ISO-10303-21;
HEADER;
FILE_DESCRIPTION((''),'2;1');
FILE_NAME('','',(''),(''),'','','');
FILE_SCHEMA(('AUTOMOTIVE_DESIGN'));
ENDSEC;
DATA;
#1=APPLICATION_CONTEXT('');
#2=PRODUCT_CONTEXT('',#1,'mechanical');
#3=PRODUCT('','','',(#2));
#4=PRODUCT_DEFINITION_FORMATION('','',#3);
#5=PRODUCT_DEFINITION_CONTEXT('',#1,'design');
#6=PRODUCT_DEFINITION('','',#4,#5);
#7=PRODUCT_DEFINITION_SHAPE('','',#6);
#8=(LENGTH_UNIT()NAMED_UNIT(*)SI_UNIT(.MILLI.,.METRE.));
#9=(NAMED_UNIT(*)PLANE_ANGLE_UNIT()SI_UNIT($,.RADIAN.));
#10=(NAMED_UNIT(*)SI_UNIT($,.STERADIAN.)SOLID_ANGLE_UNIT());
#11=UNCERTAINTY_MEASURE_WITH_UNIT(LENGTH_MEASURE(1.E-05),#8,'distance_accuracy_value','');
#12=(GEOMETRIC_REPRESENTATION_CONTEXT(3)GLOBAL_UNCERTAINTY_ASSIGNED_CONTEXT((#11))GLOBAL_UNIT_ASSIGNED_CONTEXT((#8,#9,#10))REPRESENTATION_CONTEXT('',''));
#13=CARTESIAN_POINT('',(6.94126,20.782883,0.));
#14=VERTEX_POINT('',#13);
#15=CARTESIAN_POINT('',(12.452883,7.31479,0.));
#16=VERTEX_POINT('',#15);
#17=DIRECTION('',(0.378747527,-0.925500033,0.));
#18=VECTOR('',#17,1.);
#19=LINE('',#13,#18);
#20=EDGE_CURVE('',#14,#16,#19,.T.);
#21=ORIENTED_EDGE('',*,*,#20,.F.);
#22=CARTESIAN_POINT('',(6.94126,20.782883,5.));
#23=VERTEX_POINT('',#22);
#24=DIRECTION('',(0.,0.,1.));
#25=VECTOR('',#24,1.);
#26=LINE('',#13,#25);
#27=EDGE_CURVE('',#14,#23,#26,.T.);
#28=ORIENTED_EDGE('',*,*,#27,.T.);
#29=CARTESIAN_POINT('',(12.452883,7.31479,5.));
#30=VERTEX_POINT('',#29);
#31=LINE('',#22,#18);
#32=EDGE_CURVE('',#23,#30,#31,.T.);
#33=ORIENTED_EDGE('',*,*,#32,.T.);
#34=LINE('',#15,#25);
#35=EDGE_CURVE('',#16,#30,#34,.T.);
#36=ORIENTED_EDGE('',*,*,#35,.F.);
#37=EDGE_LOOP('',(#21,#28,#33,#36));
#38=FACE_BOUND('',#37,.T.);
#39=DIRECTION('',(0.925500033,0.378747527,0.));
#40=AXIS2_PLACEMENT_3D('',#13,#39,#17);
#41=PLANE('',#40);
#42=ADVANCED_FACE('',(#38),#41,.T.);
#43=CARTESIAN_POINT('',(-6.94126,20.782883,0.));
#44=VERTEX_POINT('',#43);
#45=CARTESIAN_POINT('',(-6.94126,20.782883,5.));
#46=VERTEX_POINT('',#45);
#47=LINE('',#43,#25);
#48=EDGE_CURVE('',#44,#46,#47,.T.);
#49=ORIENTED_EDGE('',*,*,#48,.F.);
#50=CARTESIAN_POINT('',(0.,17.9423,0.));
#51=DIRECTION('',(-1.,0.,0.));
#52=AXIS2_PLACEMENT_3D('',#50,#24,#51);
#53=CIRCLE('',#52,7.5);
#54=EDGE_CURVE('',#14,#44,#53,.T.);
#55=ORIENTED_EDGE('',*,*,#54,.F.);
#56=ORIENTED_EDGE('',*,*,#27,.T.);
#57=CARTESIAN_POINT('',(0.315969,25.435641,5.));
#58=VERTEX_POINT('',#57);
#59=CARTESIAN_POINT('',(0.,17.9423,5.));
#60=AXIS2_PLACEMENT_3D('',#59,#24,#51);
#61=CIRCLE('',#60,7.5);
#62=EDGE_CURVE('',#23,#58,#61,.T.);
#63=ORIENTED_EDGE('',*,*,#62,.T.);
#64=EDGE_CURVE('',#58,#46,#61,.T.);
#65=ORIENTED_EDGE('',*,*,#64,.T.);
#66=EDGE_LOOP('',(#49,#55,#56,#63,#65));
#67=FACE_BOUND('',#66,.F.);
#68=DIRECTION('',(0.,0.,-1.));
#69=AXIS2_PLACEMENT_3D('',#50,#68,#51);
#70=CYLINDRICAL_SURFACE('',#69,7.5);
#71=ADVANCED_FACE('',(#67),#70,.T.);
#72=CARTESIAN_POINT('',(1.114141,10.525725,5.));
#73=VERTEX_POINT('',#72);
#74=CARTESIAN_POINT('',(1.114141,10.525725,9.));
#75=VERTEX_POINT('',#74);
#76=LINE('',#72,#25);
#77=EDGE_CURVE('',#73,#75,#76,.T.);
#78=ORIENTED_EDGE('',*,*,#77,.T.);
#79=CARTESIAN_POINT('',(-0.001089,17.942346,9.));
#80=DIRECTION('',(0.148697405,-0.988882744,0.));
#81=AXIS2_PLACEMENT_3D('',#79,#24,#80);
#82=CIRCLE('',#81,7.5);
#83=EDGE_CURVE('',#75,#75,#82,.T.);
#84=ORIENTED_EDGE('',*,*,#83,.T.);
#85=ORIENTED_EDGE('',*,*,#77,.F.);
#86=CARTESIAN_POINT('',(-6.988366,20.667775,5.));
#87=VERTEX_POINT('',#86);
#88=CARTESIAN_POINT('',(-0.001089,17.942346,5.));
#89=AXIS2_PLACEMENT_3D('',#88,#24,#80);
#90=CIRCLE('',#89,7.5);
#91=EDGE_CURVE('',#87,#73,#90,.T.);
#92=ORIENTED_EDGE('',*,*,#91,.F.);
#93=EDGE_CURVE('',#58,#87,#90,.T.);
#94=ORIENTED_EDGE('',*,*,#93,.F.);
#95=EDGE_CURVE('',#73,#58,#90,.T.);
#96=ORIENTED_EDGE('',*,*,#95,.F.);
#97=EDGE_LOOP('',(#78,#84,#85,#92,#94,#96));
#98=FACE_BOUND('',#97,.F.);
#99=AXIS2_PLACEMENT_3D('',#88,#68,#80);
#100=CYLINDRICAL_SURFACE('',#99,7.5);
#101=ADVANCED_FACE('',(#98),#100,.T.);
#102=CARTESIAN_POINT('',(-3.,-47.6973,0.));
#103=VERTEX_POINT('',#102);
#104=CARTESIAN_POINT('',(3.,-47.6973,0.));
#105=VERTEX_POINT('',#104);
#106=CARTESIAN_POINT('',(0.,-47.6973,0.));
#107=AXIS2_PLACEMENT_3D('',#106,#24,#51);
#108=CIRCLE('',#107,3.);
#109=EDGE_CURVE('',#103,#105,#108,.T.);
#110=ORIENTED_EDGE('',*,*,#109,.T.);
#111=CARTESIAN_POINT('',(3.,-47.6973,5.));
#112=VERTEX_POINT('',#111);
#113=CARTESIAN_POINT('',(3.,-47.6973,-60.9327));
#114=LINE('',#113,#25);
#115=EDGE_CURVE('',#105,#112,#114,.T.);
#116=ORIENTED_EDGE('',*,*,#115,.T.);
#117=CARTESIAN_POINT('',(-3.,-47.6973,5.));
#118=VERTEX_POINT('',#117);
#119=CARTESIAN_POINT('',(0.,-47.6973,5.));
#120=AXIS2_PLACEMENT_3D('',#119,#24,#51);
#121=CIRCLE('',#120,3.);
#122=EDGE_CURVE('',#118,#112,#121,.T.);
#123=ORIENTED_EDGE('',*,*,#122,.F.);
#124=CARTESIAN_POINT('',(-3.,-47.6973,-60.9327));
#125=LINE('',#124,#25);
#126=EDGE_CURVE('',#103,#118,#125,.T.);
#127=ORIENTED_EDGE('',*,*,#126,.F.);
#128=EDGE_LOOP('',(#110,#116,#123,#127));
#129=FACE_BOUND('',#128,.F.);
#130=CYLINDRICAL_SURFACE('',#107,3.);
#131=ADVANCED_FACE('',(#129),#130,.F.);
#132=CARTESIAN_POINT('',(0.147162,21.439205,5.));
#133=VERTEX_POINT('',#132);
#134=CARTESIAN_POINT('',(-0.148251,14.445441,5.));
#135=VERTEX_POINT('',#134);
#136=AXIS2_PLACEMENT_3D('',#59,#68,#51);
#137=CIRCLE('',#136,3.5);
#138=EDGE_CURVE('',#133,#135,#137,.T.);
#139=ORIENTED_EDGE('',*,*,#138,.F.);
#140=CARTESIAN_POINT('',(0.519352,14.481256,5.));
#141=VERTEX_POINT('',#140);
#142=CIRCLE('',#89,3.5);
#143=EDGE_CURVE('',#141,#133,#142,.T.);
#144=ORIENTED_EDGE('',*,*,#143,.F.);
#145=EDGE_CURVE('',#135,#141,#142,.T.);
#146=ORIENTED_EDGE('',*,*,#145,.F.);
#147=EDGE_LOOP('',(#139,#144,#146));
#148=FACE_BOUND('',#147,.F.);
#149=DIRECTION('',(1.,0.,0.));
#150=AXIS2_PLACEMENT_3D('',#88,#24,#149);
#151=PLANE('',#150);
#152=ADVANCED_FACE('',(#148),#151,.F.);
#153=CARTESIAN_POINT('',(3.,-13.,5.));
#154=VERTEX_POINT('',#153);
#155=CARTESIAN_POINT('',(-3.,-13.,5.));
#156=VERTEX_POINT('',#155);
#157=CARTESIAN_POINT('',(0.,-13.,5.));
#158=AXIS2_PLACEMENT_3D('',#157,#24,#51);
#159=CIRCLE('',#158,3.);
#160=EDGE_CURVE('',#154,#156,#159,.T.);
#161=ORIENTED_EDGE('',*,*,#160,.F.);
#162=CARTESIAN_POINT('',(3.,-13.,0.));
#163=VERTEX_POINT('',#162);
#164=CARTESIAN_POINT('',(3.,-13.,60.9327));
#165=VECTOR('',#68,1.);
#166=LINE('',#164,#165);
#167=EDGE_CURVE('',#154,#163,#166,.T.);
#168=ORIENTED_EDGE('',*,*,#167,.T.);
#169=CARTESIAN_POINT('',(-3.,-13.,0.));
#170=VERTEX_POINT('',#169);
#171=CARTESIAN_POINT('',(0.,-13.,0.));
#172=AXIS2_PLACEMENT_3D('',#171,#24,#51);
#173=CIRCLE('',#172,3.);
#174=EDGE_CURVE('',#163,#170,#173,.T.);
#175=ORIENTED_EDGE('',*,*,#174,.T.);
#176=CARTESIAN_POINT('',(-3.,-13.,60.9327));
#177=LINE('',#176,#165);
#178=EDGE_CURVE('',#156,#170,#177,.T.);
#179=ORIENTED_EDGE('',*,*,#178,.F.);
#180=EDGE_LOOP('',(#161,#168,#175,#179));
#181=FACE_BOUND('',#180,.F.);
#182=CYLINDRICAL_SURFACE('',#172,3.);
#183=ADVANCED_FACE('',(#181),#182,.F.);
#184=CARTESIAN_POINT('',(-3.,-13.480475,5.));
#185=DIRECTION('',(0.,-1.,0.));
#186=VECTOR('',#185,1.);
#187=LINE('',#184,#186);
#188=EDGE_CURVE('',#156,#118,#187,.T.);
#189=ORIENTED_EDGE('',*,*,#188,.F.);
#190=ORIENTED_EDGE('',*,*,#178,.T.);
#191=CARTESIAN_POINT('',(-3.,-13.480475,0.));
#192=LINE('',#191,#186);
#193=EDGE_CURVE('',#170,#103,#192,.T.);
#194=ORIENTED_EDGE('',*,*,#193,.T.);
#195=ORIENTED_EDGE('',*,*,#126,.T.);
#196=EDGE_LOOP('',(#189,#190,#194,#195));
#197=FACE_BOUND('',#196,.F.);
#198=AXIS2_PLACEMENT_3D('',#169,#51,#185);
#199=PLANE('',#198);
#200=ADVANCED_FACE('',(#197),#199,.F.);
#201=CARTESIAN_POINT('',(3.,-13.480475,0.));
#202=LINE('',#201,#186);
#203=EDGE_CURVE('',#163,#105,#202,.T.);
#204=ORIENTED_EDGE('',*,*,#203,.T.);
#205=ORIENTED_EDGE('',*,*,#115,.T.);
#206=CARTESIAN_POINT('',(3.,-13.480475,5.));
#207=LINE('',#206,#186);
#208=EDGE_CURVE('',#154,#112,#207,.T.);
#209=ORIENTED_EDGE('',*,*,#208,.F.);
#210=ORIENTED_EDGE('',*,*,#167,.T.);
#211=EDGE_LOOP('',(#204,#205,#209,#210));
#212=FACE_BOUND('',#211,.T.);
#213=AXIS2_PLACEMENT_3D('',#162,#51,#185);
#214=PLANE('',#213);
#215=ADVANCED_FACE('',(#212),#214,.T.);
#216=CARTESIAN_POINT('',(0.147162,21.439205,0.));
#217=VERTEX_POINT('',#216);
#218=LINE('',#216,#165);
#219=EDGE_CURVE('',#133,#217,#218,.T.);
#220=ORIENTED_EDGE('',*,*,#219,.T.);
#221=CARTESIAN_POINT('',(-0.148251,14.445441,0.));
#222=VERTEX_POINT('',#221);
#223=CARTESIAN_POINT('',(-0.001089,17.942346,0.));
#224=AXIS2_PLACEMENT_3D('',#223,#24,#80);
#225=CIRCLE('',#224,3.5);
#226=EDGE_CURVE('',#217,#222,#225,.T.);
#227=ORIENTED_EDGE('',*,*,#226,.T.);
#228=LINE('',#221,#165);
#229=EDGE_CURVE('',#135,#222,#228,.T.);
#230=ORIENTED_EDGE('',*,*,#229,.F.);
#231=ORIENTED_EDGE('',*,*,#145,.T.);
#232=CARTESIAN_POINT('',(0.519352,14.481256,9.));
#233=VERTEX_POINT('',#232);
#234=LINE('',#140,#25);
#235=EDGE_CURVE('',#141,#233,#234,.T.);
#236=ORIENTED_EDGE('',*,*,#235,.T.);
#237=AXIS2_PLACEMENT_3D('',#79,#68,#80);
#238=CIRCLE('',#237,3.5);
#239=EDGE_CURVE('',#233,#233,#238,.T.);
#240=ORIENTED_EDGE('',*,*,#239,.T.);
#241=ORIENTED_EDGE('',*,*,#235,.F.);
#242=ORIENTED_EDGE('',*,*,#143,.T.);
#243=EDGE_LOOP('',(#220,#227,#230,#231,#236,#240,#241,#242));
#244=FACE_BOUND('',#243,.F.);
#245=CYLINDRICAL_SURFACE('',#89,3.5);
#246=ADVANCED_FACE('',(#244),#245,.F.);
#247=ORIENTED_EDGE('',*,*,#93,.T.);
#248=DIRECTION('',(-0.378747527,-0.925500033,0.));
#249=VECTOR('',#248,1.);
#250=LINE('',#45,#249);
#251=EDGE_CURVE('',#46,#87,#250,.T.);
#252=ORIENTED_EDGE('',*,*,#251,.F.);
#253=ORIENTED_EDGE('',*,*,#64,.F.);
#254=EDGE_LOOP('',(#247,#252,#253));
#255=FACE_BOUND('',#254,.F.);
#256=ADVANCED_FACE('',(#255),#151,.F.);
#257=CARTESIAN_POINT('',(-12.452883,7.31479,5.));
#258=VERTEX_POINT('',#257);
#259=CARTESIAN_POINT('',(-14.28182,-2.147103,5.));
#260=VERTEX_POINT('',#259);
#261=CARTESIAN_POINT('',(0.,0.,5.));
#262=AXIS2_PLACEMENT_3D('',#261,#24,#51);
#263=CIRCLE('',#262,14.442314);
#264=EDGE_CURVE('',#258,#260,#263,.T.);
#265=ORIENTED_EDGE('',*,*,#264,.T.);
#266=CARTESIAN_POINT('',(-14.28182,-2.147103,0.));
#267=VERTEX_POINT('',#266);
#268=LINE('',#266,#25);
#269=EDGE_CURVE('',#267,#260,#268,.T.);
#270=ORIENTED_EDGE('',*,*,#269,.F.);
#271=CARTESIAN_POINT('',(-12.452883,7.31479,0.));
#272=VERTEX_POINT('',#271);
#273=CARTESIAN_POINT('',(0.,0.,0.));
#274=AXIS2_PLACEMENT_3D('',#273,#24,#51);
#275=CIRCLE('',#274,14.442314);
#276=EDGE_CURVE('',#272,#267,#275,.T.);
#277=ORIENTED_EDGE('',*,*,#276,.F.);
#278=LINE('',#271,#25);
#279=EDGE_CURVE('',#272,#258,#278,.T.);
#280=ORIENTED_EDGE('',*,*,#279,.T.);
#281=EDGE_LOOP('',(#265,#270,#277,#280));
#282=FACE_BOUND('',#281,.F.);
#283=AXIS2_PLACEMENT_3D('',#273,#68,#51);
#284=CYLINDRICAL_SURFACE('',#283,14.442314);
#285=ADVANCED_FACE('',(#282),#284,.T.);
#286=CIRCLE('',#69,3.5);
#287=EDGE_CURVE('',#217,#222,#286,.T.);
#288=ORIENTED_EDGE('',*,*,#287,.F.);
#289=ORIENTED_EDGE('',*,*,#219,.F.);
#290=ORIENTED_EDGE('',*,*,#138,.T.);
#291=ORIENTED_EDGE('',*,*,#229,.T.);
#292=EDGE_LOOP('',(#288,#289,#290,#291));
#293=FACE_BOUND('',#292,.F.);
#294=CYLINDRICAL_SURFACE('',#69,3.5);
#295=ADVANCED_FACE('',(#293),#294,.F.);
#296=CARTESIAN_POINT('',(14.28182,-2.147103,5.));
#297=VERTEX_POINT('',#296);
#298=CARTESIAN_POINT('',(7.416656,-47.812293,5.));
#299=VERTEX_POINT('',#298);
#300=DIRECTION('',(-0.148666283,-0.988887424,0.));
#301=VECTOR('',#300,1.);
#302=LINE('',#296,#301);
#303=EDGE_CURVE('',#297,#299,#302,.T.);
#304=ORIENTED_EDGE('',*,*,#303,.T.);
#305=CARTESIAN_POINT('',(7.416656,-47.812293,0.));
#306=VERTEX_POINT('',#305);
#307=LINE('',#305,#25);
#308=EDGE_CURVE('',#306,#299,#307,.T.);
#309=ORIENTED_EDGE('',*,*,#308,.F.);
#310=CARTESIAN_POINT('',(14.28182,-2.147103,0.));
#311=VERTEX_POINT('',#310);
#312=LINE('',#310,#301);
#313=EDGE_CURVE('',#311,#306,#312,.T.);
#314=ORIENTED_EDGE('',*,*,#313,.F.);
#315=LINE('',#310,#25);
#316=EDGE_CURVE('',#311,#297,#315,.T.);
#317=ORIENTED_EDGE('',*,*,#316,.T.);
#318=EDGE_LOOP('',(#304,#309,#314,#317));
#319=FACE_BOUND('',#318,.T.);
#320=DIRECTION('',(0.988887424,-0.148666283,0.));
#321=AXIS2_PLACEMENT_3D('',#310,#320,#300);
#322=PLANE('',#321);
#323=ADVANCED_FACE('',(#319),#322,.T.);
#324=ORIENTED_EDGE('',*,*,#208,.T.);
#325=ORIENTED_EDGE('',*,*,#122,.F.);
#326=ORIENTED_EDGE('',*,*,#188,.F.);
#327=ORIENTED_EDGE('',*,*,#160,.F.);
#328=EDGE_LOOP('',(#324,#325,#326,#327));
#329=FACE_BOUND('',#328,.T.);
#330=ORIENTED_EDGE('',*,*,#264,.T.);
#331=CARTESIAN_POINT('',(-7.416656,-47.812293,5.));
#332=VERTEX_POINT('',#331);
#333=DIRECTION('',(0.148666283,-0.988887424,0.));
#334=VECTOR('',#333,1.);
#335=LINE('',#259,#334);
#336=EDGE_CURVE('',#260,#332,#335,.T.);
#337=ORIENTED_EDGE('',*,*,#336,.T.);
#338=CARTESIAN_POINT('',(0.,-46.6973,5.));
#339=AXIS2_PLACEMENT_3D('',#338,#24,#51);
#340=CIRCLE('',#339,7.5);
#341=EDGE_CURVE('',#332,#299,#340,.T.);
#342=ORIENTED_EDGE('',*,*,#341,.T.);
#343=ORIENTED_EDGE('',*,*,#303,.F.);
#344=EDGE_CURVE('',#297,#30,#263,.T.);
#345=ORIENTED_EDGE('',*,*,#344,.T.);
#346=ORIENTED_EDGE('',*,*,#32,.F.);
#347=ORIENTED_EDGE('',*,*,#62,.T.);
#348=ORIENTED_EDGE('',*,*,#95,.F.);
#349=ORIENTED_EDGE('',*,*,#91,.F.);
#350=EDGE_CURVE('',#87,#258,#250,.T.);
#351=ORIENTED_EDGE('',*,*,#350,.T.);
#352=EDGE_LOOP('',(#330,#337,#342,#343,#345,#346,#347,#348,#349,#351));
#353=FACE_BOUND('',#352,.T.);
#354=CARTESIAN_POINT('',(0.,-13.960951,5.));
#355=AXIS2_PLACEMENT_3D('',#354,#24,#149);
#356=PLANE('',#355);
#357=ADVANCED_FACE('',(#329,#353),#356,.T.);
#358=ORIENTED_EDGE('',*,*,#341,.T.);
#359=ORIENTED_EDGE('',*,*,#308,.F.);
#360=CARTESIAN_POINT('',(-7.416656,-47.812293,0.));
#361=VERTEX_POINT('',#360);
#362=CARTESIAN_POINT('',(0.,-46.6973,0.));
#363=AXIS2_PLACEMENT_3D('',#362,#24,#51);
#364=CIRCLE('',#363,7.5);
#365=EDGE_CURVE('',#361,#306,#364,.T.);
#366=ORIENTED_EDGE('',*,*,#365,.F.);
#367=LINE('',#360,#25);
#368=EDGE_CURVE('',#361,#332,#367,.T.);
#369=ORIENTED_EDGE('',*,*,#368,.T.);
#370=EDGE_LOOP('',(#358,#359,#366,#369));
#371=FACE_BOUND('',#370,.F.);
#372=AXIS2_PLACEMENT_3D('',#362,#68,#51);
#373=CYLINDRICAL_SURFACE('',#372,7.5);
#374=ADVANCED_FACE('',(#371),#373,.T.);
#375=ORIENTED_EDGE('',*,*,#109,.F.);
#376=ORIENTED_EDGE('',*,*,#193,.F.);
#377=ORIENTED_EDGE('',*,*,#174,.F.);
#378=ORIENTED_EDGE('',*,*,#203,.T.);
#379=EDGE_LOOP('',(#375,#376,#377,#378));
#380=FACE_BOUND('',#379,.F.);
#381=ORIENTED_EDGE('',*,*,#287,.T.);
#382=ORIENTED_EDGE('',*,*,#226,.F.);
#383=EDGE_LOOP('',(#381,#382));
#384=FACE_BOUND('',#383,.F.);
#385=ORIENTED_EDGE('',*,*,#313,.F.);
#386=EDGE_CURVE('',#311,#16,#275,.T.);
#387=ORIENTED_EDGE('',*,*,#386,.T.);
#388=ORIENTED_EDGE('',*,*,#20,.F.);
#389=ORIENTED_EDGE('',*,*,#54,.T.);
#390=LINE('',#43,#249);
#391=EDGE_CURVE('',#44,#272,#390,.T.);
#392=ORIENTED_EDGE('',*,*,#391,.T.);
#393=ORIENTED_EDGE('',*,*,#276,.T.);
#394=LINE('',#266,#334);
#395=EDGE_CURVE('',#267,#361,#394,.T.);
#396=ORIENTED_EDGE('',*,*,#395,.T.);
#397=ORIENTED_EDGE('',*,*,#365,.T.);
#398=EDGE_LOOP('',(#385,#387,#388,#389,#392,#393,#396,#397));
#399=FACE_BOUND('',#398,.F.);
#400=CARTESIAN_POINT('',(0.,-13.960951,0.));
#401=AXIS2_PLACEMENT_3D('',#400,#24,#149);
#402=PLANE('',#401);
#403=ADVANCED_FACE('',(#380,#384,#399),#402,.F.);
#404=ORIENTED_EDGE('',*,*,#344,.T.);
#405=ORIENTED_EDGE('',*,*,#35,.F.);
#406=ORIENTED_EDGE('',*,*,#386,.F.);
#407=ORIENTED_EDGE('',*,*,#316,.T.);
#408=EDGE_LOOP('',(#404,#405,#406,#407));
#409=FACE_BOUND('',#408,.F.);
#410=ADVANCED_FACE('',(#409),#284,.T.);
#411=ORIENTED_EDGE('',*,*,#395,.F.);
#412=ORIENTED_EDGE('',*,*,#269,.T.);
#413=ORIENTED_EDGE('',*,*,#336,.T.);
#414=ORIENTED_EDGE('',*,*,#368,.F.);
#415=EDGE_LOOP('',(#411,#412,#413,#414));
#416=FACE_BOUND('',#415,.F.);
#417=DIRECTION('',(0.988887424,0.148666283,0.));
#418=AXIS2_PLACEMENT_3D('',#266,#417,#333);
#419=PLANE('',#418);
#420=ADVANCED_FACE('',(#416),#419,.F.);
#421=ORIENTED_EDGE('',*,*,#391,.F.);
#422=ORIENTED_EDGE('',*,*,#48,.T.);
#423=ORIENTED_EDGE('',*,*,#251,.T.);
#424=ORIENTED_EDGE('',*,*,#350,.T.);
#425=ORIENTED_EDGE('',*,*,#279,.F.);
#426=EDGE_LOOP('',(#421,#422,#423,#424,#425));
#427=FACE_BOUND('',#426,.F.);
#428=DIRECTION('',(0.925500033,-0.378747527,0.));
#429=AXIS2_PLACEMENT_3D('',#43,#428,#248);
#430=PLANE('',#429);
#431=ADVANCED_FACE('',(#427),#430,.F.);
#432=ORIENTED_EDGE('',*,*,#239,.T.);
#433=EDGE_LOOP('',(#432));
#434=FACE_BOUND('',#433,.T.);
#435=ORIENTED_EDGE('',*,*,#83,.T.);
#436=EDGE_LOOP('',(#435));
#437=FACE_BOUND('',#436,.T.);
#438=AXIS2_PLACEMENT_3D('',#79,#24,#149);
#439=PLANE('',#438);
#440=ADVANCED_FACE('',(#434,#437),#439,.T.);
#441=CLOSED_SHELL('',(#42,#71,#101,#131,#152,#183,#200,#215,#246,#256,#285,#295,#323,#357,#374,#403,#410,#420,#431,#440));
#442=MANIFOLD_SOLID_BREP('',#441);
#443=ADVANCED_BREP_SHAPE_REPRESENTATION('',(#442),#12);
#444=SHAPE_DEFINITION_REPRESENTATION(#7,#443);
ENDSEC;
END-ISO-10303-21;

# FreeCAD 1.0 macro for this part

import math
import FreeCAD as App
import Part
import Sketcher

V = App.Vector
Q = App.Units.Quantity

doc = App.newDocument("Part")
params = doc.addObject("Spreadsheet::Sheet", "Params")
for row, (alias, value) in enumerate([
    ("sketch1_radius", "7.5 mm"),
    ("pad1_length", "5 mm"),
    ("sketch2_diameter", "7 mm"),
    ("sketch2_radius", "3 mm"),
    ("pocket1_length", "121.8654 mm"),
    ("sketch3_diameter", "15 mm"),
    ("pad2_length", "4 mm"),
    ("sketch4_diameter", "7 mm"),
    ("pocket2_length", "27.2708 mm"),
], start=1):
    params.set(f"A{row}", alias)
    params.set(f"B{row}", "=" + value)
    params.setAlias(f"B{row}", alias)

body = doc.addObject("PartDesign::Body", "Body")

# Sketch on XY plane
sketch1 = body.newObject("Sketcher::SketchObject", "Sketch")
sketch1.AttachmentSupport = (doc.getObject("XY_Plane"), [""])
sketch1.MapMode = "FlatFace"
sketch1.addGeometry([
    Part.LineSegment(V(-7, -48, 0), V(-14, -2, 0)),  # 0
    Part.ArcOfCircle(Part.Circle(V(0, 0, 0), V(0, 0, 1), 14), math.radians(150), math.radians(189)),  # 1
    Part.LineSegment(V(-12, 7, 0), V(-7, 21, 0)),  # 2
    Part.ArcOfCircle(Part.Circle(V(0, 18, 0), V(0, 0, 1), 8), math.radians(22), math.radians(158)),  # 3
    Part.LineSegment(V(7, 21, 0), V(12, 7, 0)),  # 4
    Part.ArcOfCircle(Part.Circle(V(0, 0, 0), V(0, 0, 1), 14), math.radians(-9), math.radians(30)),  # 5
    Part.LineSegment(V(14, -2, 0), V(7, -48, 0)),  # 6
    Part.ArcOfCircle(Part.Circle(V(0, -47, 0), V(0, 0, 1), 8), math.radians(-171), math.radians(-9)),  # 7
], False)
sketch1.addConstraint([
    Sketcher.Constraint("Tangent", 0, 2, 1, 2),
    Sketcher.Constraint("Coincident", 1, 1, 2, 1),
    Sketcher.Constraint("Tangent", 2, 2, 3, 2),
    Sketcher.Constraint("Tangent", 3, 1, 4, 1),
    Sketcher.Constraint("Coincident", 4, 2, 5, 2),
    Sketcher.Constraint("Tangent", 5, 1, 6, 1),
    Sketcher.Constraint("Tangent", 6, 2, 7, 2),
    Sketcher.Constraint("Tangent", 7, 1, 0, 1),
    Sketcher.Constraint("Coincident", 1, 3, -1, 1),
    Sketcher.Constraint("Coincident", 5, 3, -1, 1),
    Sketcher.Constraint("Equal", 1, 5),
    Sketcher.Constraint("Equal", 3, 7),
    Sketcher.Constraint("Symmetric", 2, 2, 3, 1, -2),
    Sketcher.Constraint("PointOnObject", 7, 3, -2),
    Sketcher.Constraint("Radius", 3, Q("7.5 mm")),
    Sketcher.Constraint("Angle", 0, Q("98.5496 deg")),
    Sketcher.Constraint("Radius", 1, Q("14.4423 mm")),
    Sketcher.Constraint("DistanceY", 0, 2, 2, 2, Q("22.93 mm")),
    Sketcher.Constraint("DistanceX", -1, 1, 4, 2, Q("12.453 mm")),
])
sketch1.setExpression("Constraints[14]", "Params.sketch1_radius")
pad1 = body.newObject("PartDesign::Pad", "Pad")
pad1.Profile = sketch1
pad1.setExpression("Length", "Params.pad1_length")

# Sketch on XY plane
sketch2 = body.newObject("Sketcher::SketchObject", "Sketch001")
sketch2.AttachmentSupport = (doc.getObject("XY_Plane"), [""])
sketch2.MapMode = "FlatFace"
sketch2.addGeometry([
    Part.Circle(V(0, 17.9, 0), V(0, 0, 1), 3.5),  # 0
    Part.LineSegment(V(-3, -47.7, 0), V(-3, -13, 0)),  # 1
    Part.ArcOfCircle(Part.Circle(V(0, -13, 0), V(0, 0, 1), 3), math.radians(0), math.radians(180)),  # 2
    Part.LineSegment(V(3, -13, 0), V(3, -47.7, 0)),  # 3
    Part.ArcOfCircle(Part.Circle(V(0, -47.7, 0), V(0, 0, 1), 3), math.radians(180), math.radians(360)),  # 4
], False)
sketch2.addConstraint([
    Sketcher.Constraint("Tangent", 1, 2, 2, 2),
    Sketcher.Constraint("Tangent", 2, 1, 3, 1),
    Sketcher.Constraint("Tangent", 3, 2, 4, 2),
    Sketcher.Constraint("Tangent", 4, 1, 1, 1),
    Sketcher.Constraint("Vertical", 1),
    Sketcher.Constraint("Vertical", 3),
    Sketcher.Constraint("PointOnObject", 0, 3, -2),
    Sketcher.Constraint("PointOnObject", 2, 3, -2),
    Sketcher.Constraint("Diameter", 0, Q("7 mm")),
    Sketcher.Constraint("Radius", 2, Q("3 mm")),
    Sketcher.Constraint("DistanceY", 2, 3, -1, 1, Q("13 mm")),
    Sketcher.Constraint("DistanceY", 1, 1, 1, 2, Q("34.6973 mm")),
    Sketcher.Constraint("DistanceY", -1, 1, 0, 3, Q("17.9423 mm")),
])
sketch2.setExpression("Constraints[8]", "Params.sketch2_diameter")
sketch2.setExpression("Constraints[9]", "Params.sketch2_radius")
pocket1 = body.newObject("PartDesign::Pocket", "Pocket")
pocket1.Profile = sketch2
pocket1.setExpression("Length", "Params.pocket1_length")
pocket1.Midplane = True

# Sketch on XY plane
sketch3 = body.newObject("Sketcher::SketchObject", "Sketch002")
sketch3.AttachmentSupport = (doc.getObject("XY_Plane"), [""])
sketch3.MapMode = "FlatFace"
sketch3.AttachmentOffset = App.Placement(V(0, 0, 5), App.Rotation())
sketch3.addGeometry(Part.Circle(V(0, 18, 0), V(0, 0, 1), 8), False)
sketch3.addConstraint([
    Sketcher.Constraint("Diameter", 0, Q("15 mm")),
    Sketcher.Constraint("DistanceX", 0, 3, -1, 1, Q("0.001 mm")),
    Sketcher.Constraint("DistanceY", -1, 1, 0, 3, Q("17.9423 mm")),
])
sketch3.setExpression("Constraints[0]", "Params.sketch3_diameter")
pad2 = body.newObject("PartDesign::Pad", "Pad001")
pad2.Profile = sketch3
pad2.setExpression("Length", "Params.pad2_length")

# Sketch on XY plane
sketch4 = body.newObject("Sketcher::SketchObject", "Sketch003")
sketch4.AttachmentSupport = (doc.getObject("XY_Plane"), [""])
sketch4.MapMode = "FlatFace"
sketch4.AttachmentOffset = App.Placement(V(0, 0, 5), App.Rotation())
sketch4.addGeometry(Part.Circle(V(0, 17.9, 0), V(0, 0, 1), 3.5), False)
sketch4.addConstraint([
    Sketcher.Constraint("Diameter", 0, Q("7 mm")),
    Sketcher.Constraint("DistanceX", 0, 3, -1, 1, Q("0.001 mm")),
    Sketcher.Constraint("DistanceY", -1, 1, 0, 3, Q("17.9423 mm")),
])
sketch4.setExpression("Constraints[0]", "Params.sketch4_diameter")
pocket2 = body.newObject("PartDesign::Pocket", "Pocket001")
pocket2.Profile = sketch4
pocket2.setExpression("Length", "Params.pocket2_length")
pocket2.Midplane = True

doc.recompute()
